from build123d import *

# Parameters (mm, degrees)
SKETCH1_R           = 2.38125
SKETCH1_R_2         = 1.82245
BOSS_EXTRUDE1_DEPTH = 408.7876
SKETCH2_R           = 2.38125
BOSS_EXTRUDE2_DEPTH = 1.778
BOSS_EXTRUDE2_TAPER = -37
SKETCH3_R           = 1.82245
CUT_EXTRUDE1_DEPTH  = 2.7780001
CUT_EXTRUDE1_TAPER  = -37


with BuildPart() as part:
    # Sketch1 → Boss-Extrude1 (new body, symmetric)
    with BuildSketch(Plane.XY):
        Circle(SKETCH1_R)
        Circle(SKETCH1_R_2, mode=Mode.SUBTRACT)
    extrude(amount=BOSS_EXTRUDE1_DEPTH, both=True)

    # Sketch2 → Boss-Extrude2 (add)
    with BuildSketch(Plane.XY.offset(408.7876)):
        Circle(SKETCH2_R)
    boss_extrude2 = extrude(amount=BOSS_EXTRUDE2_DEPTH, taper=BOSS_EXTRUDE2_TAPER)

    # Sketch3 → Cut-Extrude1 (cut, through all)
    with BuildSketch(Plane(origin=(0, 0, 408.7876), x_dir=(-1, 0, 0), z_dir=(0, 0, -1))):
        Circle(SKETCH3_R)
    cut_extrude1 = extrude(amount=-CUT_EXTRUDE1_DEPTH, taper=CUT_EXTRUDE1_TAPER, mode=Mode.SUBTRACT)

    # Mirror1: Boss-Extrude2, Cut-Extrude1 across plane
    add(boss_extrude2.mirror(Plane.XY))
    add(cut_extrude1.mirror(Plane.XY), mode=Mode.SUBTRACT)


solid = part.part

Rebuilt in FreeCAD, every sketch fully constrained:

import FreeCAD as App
import Part
import Sketcher
Q = App.Units.Quantity

doc = App.newDocument("Part")
params = doc.addObject("Spreadsheet::Sheet", "Params")
for row, (alias, value) in enumerate([
    ("sketch1_diameter", "0.1875 in"),
    ("pad1_length", "32.188 in"),
    ("sketch2_diameter", "0.1875 in"),
    ("pad2_length", "0.07 in"),
    ("pad2_taper", "37 deg"),
    ("pocket1_taper", "37 deg"),
], start=1):
    params.set(f"A{row}", alias)
    params.set(f"B{row}", "=" + value)
    params.setAlias(f"B{row}", alias)

body = doc.addObject("PartDesign::Body", "Body")

# Sketch on XY plane
sketch1 = doc.addObject("Sketcher::SketchObject", "Sketch")
body.addObject(sketch1)
sketch1.AttachmentSupport = (doc.XY_Plane, [""])
sketch1.MapMode = "FlatFace"
sketch1.addGeometry([
    Part.Circle(App.Vector(0, 0, 0), App.Vector(0, 0, 1), 2.4),
    Part.Circle(App.Vector(0, 0, 0), App.Vector(0, 0, 1), 1.8),
], False)
sketch1.addConstraint([
    Sketcher.Constraint("Coincident", 0, 3, -1, 1),
    Sketcher.Constraint("Coincident", 1, 3, -1, 1),
    Sketcher.Constraint("Diameter", 0, Q("0.1875 in")),
    Sketcher.Constraint("Diameter", 1, Q("0.1435 in")),
])
sketch1.setExpression("Constraints[2]", "Params.sketch1_diameter")
pad1 = doc.addObject("PartDesign::Pad", "Pad")
body.addObject(pad1)
pad1.Profile = sketch1
pad1.setExpression("Length", "Params.pad1_length")
pad1.Midplane = True

# Sketch on XY plane
sketch2 = doc.addObject("Sketcher::SketchObject", "Sketch001")
body.addObject(sketch2)
sketch2.AttachmentSupport = (doc.XY_Plane, [""])
sketch2.MapMode = "FlatFace"
sketch2.AttachmentOffset = App.Placement(App.Vector(0, 0, 16.094 * 25.4), App.Rotation())
sketch2.addGeometry(Part.Circle(App.Vector(0, 0, 0), App.Vector(0, 0, 1), 2.4), False)
sketch2.addConstraint([
    Sketcher.Constraint("Coincident", 0, 3, -1, 1),
    Sketcher.Constraint("Diameter", 0, Q("0.1875 in")),
])
sketch2.setExpression("Constraints[1]", "Params.sketch2_diameter")
pad2 = doc.addObject("PartDesign::Pad", "Pad001")
body.addObject(pad2)
pad2.Profile = sketch2
pad2.setExpression("Length", "Params.pad2_length")
pad2.setExpression("TaperAngle", "Params.pad2_taper")

# Sketch on XY plane
sketch3 = doc.addObject("Sketcher::SketchObject", "Sketch002")
body.addObject(sketch3)
sketch3.AttachmentSupport = (doc.XY_Plane, [""])
sketch3.MapMode = "FlatFace"
sketch3.AttachmentOffset = App.Placement(App.Vector(0, 0, 16.094 * 25.4), App.Rotation())
sketch3.addGeometry(Part.Circle(App.Vector(0, 0, 0), App.Vector(0, 0, 1), 1.8), False)
sketch3.addConstraint([
    Sketcher.Constraint("Coincident", 0, 3, -1, 1),
    Sketcher.Constraint("Diameter", 0, Q("0.1435 in")),
])
pocket1 = doc.addObject("PartDesign::Pocket", "Pocket")
body.addObject(pocket1)
pocket1.Profile = sketch3
pocket1.Type = "ThroughAll"
pocket1.Reversed = True
pocket1.setExpression("TaperAngle", "Params.pocket1_taper")
doc.recompute()

mirrored = doc.addObject("PartDesign::Mirrored", "Mirrored")
body.addObject(mirrored)
mirrored.Originals = [pad2, pocket1]
mirrored.MirrorPlane = (doc.XY_Plane, [""])
body.Tip = mirrored

doc.recompute()
